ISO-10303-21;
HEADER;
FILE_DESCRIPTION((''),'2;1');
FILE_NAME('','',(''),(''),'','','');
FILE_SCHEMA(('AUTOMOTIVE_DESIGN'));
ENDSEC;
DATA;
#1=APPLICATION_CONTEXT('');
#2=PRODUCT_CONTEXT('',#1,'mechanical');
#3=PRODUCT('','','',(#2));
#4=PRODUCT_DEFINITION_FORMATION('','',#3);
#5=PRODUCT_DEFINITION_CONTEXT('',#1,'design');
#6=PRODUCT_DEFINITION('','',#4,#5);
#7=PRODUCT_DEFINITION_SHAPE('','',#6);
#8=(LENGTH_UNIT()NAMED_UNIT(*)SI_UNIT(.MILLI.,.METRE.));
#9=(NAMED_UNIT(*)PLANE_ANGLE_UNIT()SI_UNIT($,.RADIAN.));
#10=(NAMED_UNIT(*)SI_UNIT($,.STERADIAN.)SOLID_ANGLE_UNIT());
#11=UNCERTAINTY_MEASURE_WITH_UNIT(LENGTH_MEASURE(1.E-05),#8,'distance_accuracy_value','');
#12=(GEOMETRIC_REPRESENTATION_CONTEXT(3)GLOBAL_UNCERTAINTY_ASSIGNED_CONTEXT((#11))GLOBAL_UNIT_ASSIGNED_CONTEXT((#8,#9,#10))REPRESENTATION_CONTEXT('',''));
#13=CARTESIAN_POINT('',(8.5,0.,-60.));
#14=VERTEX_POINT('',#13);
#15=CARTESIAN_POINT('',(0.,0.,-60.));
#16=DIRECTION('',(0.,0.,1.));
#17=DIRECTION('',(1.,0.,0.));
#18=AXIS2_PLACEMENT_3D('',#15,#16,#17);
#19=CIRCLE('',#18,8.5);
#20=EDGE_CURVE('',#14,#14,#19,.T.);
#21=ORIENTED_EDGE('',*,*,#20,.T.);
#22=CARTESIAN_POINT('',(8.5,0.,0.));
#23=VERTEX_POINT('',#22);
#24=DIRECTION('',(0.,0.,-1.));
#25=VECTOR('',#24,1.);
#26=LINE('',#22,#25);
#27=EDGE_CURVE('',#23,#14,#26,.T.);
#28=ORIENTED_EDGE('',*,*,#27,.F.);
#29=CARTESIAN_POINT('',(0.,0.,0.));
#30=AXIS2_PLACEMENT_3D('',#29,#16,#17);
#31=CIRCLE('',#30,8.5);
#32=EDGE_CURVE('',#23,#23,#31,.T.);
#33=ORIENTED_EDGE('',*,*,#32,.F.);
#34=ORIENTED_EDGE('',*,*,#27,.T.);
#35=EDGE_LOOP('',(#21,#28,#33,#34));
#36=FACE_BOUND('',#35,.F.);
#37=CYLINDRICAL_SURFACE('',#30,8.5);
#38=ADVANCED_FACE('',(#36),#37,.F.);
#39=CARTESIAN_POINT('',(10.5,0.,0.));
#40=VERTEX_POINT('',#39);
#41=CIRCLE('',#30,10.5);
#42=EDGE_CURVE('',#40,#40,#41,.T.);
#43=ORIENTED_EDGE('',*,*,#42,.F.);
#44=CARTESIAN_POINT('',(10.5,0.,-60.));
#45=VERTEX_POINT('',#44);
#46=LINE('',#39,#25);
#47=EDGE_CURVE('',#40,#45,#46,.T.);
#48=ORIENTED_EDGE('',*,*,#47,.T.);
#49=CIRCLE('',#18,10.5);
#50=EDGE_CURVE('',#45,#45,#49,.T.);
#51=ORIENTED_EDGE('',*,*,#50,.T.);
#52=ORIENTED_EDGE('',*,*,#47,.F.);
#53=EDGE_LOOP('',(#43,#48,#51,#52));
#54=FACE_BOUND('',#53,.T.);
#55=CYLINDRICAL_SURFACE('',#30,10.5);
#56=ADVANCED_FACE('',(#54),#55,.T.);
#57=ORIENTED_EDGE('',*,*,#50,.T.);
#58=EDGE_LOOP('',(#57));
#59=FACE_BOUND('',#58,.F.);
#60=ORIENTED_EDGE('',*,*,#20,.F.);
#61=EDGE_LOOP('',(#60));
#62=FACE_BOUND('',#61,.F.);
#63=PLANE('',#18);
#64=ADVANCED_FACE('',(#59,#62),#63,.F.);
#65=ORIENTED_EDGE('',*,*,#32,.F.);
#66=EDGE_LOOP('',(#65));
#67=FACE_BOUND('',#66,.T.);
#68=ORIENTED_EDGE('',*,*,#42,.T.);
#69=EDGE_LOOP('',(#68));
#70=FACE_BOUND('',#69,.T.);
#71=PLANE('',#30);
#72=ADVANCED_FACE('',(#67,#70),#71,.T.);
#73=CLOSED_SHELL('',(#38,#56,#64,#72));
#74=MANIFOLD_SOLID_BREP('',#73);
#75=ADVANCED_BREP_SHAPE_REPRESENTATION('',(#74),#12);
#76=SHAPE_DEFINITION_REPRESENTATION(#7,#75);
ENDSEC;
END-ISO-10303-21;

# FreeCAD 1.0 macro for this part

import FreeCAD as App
import Part
import Sketcher

doc = App.newDocument("Part")
body = doc.addObject("PartDesign::Body", "Body")

sketch1 = body.newObject("Sketcher::SketchObject", "Sketch")
sketch1.AttachmentSupport = (doc.getObject("XY_Plane"), [""])
sketch1.MapMode = "FlatFace"
sketch1.addGeometry(Part.Circle(App.Vector(0, 0, 0), App.Vector(0, 0, 1), 10), False)
sketch1.addGeometry(Part.Circle(App.Vector(0, 0, 0), App.Vector(0, 0, 1), 8), False)
sketch1.addConstraint(Sketcher.Constraint("Coincident", 0, 3, -1, 1))
sketch1.addConstraint(Sketcher.Constraint("Coincident", 1, 3, -1, 1))
sketch1.addConstraint(Sketcher.Constraint("Diameter", 0, 21.0))
sketch1.addConstraint(Sketcher.Constraint("Diameter", 1, 17.0))
pad1 = body.newObject("PartDesign::Pad", "Pad")
pad1.Profile = sketch1
pad1.Length = 60
pad1.Reversed = True

doc.recompute()
